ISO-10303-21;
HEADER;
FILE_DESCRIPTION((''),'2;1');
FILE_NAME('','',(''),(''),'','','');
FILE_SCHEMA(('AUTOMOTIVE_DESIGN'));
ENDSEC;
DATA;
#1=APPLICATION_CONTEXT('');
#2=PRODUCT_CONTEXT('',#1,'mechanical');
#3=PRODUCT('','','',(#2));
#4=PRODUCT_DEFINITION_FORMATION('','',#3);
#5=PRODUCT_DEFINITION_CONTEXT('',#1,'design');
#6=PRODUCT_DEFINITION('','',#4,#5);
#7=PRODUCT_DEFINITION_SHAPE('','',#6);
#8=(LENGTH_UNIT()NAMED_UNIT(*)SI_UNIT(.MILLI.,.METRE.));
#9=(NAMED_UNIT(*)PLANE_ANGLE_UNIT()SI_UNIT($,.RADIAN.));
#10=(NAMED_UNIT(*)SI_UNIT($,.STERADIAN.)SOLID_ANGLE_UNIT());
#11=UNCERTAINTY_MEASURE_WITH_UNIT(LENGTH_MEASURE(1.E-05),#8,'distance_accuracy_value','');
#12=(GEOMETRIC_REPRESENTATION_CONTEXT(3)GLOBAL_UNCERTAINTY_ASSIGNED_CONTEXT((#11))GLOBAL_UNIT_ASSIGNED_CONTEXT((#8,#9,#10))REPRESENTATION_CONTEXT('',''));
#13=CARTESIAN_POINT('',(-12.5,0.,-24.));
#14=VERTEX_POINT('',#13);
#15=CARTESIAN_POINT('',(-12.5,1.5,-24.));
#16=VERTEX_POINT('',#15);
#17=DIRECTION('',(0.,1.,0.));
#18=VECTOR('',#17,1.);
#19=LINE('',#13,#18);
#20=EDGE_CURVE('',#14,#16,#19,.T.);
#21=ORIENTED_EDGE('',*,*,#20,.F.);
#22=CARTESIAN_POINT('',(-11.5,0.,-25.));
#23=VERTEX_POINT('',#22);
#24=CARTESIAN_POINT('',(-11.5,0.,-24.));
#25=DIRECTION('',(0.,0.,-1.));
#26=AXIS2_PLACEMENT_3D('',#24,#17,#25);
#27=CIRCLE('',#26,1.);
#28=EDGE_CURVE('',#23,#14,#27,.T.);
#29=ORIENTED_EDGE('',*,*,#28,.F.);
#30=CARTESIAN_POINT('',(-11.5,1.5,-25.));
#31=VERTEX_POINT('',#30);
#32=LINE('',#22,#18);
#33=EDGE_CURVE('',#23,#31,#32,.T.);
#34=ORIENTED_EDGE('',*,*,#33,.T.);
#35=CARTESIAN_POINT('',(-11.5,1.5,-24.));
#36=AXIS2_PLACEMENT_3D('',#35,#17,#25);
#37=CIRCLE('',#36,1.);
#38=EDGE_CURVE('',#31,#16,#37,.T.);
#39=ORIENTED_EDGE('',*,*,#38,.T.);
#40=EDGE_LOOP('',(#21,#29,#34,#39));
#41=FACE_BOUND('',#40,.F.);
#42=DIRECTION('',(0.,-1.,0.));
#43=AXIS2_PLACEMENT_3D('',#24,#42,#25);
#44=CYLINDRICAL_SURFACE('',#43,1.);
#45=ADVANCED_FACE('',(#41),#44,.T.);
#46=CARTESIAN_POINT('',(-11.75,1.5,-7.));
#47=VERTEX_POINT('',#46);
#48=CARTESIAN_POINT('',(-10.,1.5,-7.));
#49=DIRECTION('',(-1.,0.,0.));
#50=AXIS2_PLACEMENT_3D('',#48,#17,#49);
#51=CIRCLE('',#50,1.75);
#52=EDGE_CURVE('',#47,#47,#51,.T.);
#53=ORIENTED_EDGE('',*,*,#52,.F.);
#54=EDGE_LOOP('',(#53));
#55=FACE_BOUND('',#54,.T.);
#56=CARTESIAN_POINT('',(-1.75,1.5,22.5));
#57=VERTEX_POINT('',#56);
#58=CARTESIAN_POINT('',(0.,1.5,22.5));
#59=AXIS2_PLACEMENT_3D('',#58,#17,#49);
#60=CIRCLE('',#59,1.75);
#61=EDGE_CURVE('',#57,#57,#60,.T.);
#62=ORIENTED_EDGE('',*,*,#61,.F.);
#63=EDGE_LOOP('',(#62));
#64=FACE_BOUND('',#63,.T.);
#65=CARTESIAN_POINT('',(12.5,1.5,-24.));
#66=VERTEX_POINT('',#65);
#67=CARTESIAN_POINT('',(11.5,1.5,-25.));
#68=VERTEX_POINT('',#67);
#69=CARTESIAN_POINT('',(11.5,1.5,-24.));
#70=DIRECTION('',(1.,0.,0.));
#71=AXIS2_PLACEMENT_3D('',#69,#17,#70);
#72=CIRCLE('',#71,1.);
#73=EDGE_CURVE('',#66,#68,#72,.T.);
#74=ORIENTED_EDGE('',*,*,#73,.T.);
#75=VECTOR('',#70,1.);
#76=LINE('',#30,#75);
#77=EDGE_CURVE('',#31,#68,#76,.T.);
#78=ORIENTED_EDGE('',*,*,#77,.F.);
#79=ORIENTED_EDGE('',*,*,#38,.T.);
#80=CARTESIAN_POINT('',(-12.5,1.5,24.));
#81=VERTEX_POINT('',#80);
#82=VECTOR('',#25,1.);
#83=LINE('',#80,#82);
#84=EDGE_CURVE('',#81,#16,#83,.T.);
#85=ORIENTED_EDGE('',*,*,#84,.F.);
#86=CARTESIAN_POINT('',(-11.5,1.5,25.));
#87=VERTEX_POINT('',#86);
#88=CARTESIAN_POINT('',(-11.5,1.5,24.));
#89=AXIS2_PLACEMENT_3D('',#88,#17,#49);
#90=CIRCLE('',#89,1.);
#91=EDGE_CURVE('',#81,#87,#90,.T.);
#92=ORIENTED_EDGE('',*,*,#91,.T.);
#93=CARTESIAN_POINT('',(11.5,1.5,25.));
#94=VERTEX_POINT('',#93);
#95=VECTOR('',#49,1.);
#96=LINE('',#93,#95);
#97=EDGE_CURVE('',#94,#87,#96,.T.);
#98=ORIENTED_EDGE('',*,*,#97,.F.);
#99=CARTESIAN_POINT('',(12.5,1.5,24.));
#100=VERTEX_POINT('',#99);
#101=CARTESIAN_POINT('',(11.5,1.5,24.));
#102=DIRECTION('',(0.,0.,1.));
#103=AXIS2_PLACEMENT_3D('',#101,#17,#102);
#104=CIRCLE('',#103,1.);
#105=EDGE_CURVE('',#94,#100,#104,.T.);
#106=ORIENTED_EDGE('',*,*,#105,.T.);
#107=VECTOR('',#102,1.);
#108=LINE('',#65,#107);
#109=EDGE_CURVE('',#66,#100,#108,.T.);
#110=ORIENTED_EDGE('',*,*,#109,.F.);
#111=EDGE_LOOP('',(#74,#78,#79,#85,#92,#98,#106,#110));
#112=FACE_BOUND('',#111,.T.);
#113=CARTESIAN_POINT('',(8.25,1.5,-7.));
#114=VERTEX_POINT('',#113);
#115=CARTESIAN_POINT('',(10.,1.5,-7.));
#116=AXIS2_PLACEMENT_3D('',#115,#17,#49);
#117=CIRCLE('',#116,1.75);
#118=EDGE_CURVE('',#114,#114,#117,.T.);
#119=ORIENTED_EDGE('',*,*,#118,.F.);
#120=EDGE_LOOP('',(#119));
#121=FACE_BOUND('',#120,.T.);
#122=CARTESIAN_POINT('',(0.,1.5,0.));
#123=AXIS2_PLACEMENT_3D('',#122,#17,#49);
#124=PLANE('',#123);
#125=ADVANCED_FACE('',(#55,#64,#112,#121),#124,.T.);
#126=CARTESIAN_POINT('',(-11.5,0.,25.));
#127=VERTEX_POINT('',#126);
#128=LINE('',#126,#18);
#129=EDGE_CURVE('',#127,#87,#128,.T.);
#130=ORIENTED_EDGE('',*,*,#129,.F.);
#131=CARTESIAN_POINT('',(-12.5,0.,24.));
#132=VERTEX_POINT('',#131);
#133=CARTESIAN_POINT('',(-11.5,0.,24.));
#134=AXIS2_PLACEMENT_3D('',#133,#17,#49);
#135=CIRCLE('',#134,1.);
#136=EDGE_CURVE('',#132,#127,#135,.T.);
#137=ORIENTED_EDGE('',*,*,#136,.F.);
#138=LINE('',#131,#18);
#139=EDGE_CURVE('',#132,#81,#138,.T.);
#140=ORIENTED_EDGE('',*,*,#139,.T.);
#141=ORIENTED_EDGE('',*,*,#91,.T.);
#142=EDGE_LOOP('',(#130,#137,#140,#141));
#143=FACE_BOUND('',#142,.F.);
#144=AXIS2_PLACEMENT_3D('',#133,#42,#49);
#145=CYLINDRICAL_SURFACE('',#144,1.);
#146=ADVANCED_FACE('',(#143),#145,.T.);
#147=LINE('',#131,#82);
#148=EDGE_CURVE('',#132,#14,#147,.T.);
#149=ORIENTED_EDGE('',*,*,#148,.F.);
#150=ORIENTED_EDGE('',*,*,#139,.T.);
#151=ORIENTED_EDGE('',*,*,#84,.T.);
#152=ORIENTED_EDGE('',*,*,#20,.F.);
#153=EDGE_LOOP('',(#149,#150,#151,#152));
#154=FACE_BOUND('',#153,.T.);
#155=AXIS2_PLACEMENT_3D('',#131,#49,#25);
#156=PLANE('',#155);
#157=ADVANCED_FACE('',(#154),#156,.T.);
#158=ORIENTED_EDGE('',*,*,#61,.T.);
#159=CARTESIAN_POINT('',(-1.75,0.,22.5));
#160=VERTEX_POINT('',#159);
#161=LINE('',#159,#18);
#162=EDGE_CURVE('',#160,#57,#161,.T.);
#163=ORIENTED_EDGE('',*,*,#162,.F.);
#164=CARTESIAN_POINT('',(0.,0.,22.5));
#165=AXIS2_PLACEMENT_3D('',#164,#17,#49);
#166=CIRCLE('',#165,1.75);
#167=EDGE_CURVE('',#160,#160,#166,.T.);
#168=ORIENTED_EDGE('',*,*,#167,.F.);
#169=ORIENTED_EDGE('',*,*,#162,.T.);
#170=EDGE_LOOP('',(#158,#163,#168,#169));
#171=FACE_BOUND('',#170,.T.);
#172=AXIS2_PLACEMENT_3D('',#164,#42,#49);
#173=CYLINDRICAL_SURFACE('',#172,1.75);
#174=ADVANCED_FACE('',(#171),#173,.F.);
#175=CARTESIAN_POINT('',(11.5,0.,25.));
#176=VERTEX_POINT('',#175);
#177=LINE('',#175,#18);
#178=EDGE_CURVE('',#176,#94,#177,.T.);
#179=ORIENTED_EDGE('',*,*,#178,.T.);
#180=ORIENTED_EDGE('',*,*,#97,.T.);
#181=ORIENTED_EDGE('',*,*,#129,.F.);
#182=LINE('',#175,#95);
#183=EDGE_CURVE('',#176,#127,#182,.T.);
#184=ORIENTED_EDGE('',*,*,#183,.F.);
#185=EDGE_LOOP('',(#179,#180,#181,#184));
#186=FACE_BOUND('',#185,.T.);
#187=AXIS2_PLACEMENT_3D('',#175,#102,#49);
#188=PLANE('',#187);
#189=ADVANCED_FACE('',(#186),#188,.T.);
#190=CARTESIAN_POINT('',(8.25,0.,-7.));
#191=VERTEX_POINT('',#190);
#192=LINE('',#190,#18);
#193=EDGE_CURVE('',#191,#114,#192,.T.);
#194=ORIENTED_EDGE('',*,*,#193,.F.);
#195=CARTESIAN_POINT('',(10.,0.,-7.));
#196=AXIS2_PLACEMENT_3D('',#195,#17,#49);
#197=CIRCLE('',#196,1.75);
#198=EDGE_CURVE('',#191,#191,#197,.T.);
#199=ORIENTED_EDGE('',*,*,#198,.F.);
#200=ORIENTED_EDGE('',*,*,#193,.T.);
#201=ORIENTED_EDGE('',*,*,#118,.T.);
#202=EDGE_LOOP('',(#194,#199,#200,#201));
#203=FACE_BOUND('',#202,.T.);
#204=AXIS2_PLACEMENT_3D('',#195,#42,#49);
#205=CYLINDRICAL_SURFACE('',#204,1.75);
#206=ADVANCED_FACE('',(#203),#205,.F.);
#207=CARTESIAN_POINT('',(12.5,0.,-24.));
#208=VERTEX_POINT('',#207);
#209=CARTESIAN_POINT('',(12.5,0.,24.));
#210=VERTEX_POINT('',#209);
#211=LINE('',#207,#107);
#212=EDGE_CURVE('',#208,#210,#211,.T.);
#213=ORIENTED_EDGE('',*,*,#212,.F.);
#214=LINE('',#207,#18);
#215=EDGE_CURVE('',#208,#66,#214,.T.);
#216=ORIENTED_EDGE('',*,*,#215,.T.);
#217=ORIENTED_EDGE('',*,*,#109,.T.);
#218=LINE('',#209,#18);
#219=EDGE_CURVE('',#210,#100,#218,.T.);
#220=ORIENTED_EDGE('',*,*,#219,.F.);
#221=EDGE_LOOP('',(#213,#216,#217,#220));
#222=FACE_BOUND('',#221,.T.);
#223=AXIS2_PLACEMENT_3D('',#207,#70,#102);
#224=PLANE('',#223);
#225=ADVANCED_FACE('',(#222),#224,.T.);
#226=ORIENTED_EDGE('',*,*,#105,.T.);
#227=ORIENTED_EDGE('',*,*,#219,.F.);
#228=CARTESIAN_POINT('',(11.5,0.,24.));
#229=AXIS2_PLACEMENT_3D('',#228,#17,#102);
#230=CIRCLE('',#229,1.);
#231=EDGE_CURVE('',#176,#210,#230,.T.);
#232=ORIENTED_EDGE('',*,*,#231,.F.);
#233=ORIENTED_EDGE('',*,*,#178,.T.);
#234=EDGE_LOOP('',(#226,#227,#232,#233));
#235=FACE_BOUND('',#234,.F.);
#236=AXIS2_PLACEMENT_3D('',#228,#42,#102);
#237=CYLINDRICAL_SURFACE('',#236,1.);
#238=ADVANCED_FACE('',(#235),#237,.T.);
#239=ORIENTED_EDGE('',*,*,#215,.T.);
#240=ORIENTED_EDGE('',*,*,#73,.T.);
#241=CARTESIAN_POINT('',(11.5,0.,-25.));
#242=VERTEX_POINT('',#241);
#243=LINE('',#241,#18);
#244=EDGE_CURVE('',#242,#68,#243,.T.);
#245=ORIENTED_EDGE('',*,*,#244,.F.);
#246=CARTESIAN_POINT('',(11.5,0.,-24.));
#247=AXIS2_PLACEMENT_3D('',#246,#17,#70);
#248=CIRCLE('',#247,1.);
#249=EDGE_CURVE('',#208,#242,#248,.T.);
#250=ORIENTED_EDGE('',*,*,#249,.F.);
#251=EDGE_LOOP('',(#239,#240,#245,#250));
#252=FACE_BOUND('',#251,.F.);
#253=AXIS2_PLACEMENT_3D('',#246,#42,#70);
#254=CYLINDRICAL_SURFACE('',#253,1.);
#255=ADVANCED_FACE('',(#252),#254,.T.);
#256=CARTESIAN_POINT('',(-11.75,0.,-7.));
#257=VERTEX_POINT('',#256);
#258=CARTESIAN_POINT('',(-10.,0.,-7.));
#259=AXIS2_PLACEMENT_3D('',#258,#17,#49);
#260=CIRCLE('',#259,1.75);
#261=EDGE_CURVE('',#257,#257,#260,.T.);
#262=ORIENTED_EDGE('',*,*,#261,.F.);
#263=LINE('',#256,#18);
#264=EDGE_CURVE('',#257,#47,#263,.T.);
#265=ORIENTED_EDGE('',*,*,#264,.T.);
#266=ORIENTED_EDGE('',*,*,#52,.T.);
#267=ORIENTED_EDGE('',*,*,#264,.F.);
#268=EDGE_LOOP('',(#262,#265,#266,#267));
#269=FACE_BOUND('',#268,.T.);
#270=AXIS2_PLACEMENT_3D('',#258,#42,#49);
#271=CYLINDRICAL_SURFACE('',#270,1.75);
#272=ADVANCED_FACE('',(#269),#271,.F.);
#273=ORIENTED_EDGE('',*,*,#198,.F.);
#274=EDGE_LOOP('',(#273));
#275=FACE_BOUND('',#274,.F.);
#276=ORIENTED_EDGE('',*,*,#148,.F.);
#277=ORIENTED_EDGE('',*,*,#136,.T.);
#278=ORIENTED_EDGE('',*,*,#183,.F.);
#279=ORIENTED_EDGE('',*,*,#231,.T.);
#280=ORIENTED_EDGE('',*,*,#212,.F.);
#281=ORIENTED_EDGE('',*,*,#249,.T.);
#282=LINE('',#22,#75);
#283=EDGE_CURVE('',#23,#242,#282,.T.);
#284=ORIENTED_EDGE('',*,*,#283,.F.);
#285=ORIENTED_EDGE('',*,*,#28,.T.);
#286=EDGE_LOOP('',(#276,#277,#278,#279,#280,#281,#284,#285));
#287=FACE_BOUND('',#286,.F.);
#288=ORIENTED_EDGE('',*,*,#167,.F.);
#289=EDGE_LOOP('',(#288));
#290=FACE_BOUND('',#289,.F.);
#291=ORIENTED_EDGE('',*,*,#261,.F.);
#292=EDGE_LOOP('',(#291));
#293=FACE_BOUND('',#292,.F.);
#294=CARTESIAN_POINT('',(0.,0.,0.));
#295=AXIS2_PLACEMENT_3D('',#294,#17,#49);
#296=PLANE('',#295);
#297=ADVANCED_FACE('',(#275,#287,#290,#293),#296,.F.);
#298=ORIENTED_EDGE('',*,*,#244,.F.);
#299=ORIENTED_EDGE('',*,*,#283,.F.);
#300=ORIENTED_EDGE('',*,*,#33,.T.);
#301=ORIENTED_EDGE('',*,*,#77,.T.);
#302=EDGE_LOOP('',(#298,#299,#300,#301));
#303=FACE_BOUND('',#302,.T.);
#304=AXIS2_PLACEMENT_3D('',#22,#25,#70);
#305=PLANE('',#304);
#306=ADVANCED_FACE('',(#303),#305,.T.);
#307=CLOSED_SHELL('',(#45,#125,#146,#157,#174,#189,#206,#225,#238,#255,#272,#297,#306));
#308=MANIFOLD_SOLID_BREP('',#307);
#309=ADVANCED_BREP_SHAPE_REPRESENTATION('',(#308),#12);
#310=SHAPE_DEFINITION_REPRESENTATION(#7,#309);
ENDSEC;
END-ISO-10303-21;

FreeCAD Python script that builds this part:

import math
import FreeCAD as App
import Part
import Sketcher
Q = App.Units.Quantity

doc = App.newDocument("Part")
body = doc.addObject("PartDesign::Body", "Body")

# Sketch on XZ plane
sketch1 = body.newObject("Sketcher::SketchObject", "Sketch")
sketch1.AttachmentSupport = (doc.getObject("XZ_Plane"), [""])
sketch1.MapMode = "FlatFace"
sketch1.addGeometry(Part.LineSegment(App.Vector(-11.5, 25, 0), App.Vector(11.5, 25, 0)), False)
sketch1.addGeometry(Part.ArcOfCircle(Part.Circle(App.Vector(11.5, 24, 0), App.Vector(0, 0, 1), 1), math.radians(0), math.radians(90)), False)
sketch1.addGeometry(Part.LineSegment(App.Vector(12.5, 24, 0), App.Vector(12.5, -24, 0)), False)
sketch1.addGeometry(Part.ArcOfCircle(Part.Circle(App.Vector(11.5, -24, 0), App.Vector(0, 0, 1), 1), math.radians(-90), math.radians(0)), False)
sketch1.addGeometry(Part.LineSegment(App.Vector(11.5, -25, 0), App.Vector(-11.5, -25, 0)), False)
sketch1.addGeometry(Part.ArcOfCircle(Part.Circle(App.Vector(-11.5, -24, 0), App.Vector(0, 0, 1), 1), math.radians(180), math.radians(270)), False)
sketch1.addGeometry(Part.LineSegment(App.Vector(-12.5, -24, 0), App.Vector(-12.5, 24, 0)), False)
sketch1.addGeometry(Part.ArcOfCircle(Part.Circle(App.Vector(-11.5, 24, 0), App.Vector(0, 0, 1), 1), math.radians(90), math.radians(180)), False)
sketch1.addGeometry(Part.Circle(App.Vector(10, -7, 0), App.Vector(0, 0, 1), 1.8), False)
sketch1.addGeometry(Part.Circle(App.Vector(-10, -7, 0), App.Vector(0, 0, 1), 1.8), False)
sketch1.addGeometry(Part.Circle(App.Vector(0, 22.5, 0), App.Vector(0, 0, 1), 1.8), False)
sketch1.addConstraint(Sketcher.Constraint("Tangent", 0, 2, 1, 2))
sketch1.addConstraint(Sketcher.Constraint("Tangent", 1, 1, 2, 1))
sketch1.addConstraint(Sketcher.Constraint("Tangent", 2, 2, 3, 2))
sketch1.addConstraint(Sketcher.Constraint("Tangent", 3, 1, 4, 1))
sketch1.addConstraint(Sketcher.Constraint("Tangent", 4, 2, 5, 2))
sketch1.addConstraint(Sketcher.Constraint("Tangent", 5, 1, 6, 1))
sketch1.addConstraint(Sketcher.Constraint("Tangent", 6, 2, 7, 2))
sketch1.addConstraint(Sketcher.Constraint("Tangent", 7, 1, 0, 1))
sketch1.addConstraint(Sketcher.Constraint("Horizontal", 0))
sketch1.addConstraint(Sketcher.Constraint("Vertical", 2))
sketch1.addConstraint(Sketcher.Constraint("Horizontal", 4))
sketch1.addConstraint(Sketcher.Constraint("Vertical", 6))
sketch1.addConstraint(Sketcher.Constraint("Equal", 1, 3))
sketch1.addConstraint(Sketcher.Constraint("Equal", 3, 5))
sketch1.addConstraint(Sketcher.Constraint("Equal", 5, 7))
sketch1.addConstraint(Sketcher.Constraint("Equal", 8, 9))
sketch1.addConstraint(Sketcher.Constraint("Equal", 9, 10))
sketch1.addConstraint(Sketcher.Constraint("Symmetric", 1, 3, 5, 3, -1, 1))
sketch1.addConstraint(Sketcher.Constraint("Symmetric", 8, 3, 9, 3, -2))
sketch1.addConstraint(Sketcher.Constraint("PointOnObject", 10, 3, -2))
sketch1.addConstraint(Sketcher.Constraint("Radius", 1, Q("1 mm")))
sketch1.addConstraint(Sketcher.Constraint("Diameter", 8, Q("3.5 mm")))
sketch1.addConstraint(Sketcher.Constraint("DistanceY", -1, 1, 0, 2, Q("25 mm")))
sketch1.addConstraint(Sketcher.Constraint("DistanceY", 8, 3, 0, 2, Q("32 mm")))
sketch1.addConstraint(Sketcher.Constraint("DistanceX", 6, 2, 1, 1, Q("25 mm")))
sketch1.addConstraint(Sketcher.Constraint("DistanceY", 10, 3, 0, 2, Q("2.5 mm")))
sketch1.addConstraint(Sketcher.Constraint("DistanceX", 8, 3, 1, 1, Q("2.5 mm")))
pad1 = body.newObject("PartDesign::Pad", "Pad")
pad1.Profile = sketch1
pad1.Length = 1.5
pad1.Reversed = True

doc.recompute()
